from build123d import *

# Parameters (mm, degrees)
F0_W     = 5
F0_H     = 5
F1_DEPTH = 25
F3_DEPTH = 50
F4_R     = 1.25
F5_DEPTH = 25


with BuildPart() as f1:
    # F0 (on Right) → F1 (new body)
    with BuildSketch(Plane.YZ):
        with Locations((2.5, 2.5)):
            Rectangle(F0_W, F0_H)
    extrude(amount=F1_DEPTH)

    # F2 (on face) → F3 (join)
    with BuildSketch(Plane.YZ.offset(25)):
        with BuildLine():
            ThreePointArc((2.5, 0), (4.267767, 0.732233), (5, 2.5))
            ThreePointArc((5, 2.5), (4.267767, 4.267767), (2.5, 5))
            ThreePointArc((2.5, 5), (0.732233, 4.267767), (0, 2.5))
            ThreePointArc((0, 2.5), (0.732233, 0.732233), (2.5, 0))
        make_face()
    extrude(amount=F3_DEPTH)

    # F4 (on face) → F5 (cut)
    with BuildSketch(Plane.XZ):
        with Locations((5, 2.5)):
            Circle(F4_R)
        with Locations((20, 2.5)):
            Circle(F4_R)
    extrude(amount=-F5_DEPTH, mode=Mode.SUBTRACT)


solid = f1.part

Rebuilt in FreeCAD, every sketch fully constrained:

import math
import FreeCAD as App
import Part
import Sketcher
Q = App.Units.Quantity


def add_polygon(sketch, points):
    """Adds a closed chain of lines whose ends are joined by coincident constraints."""
    first, n = sketch.GeometryCount, len(points)
    for a, b in zip(points, points[1:] + points[:1]):
        sketch.addGeometry(Part.LineSegment(App.Vector(*a, 0), App.Vector(*b, 0)), False)
    for i in range(n):
        sketch.addConstraint(Sketcher.Constraint("Coincident", first + i, 2, first + (i + 1) % n, 1))

doc = App.newDocument("Part")
params = doc.addObject("Spreadsheet::Sheet", "Params")
for row, (alias, value) in enumerate([
    ("sketch1_width", "5 mm"),
    ("pad1_length", "25 mm"),
    ("sketch2_radius", "2.5 mm"),
    ("pad2_length", "50 mm"),
    ("sketch3_diameter", "2.5 mm"),
    ("pocket1_length", "25 mm"),
], start=1):
    params.set(f"A{row}", alias)
    params.set(f"B{row}", "=" + value)
    params.setAlias(f"B{row}", alias)

body = doc.addObject("PartDesign::Body", "Body")

sketch1 = body.newObject("Sketcher::SketchObject", "Sketch")
sketch1.AttachmentSupport = (doc.getObject("YZ_Plane"), [""])
sketch1.MapMode = "FlatFace"
add_polygon(sketch1, [(0, 5), (0, 0), (5, 0), (5, 5)])
sketch1.addConstraint(Sketcher.Constraint("Vertical", 0))
sketch1.addConstraint(Sketcher.Constraint("Horizontal", 1))
sketch1.addConstraint(Sketcher.Constraint("Vertical", 2))
sketch1.addConstraint(Sketcher.Constraint("Horizontal", 3))
sketch1.addConstraint(Sketcher.Constraint("Coincident", 0, 2, -1, 1))
sketch1.addConstraint(Sketcher.Constraint("Equal", 3, 0))
sketch1.addConstraint(Sketcher.Constraint("DistanceX", 1, 1, 1, 2, Q("5 mm")))
sketch1.setExpression("Constraints[10]", "Params.sketch1_width")
pad1 = body.newObject("PartDesign::Pad", "Pad")
pad1.Profile = sketch1
pad1.setExpression("Length", "Params.pad1_length")

sketch2 = body.newObject("Sketcher::SketchObject", "Sketch001")
sketch2.AttachmentSupport = (doc.getObject("YZ_Plane"), [""])
sketch2.MapMode = "FlatFace"
sketch2.AttachmentOffset = App.Placement(App.Vector(0, 0, 25), App.Rotation())
sketch2.addGeometry(Part.ArcOfCircle(Part.Circle(App.Vector(2.5, 2.5, 0), App.Vector(0, 0, 1), 2.5), math.radians(-90), math.radians(0)), False)
sketch2.addGeometry(Part.ArcOfCircle(Part.Circle(App.Vector(2.5, 2.5, 0), App.Vector(0, 0, 1), 2.5), math.radians(0), math.radians(90)), False)
sketch2.addGeometry(Part.ArcOfCircle(Part.Circle(App.Vector(2.5, 2.5, 0), App.Vector(0, 0, 1), 2.5), math.radians(90), math.radians(180)), False)
sketch2.addGeometry(Part.ArcOfCircle(Part.Circle(App.Vector(2.5, 2.5, 0), App.Vector(0, 0, 1), 2.5), math.radians(180), math.radians(270)), False)
sketch2.addConstraint(Sketcher.Constraint("Tangent", 0, 2, 1, 1))
sketch2.addConstraint(Sketcher.Constraint("Tangent", 1, 2, 2, 1))
sketch2.addConstraint(Sketcher.Constraint("Tangent", 2, 2, 3, 1))
sketch2.addConstraint(Sketcher.Constraint("Tangent", 3, 2, 0, 1))
sketch2.addConstraint(Sketcher.Constraint("Equal", 0, 1))
sketch2.addConstraint(Sketcher.Constraint("PointOnObject", 2, 2, -2))
sketch2.addConstraint(Sketcher.Constraint("PointOnObject", 3, 2, -1))
sketch2.addConstraint(Sketcher.Constraint("Horizontal", 3, 3, 0, 2))
sketch2.addConstraint(Sketcher.Constraint("Horizontal", 0, 2, 2, 2))
sketch2.addConstraint(Sketcher.Constraint("Vertical", 3, 3, 1, 2))
sketch2.addConstraint(Sketcher.Constraint("Vertical", 1, 2, 3, 2))
sketch2.addConstraint(Sketcher.Constraint("Radius", 0, Q("2.5 mm")))
sketch2.setExpression("Constraints[11]", "Params.sketch2_radius")
pad2 = body.newObject("PartDesign::Pad", "Pad001")
pad2.Profile = sketch2
pad2.setExpression("Length", "Params.pad2_length")

sketch3 = body.newObject("Sketcher::SketchObject", "Sketch002")
sketch3.AttachmentSupport = (doc.getObject("XZ_Plane"), [""])
sketch3.MapMode = "FlatFace"
sketch3.addGeometry(Part.Circle(App.Vector(5, 2.5, 0), App.Vector(0, 0, 1), 1.2), False)
sketch3.addGeometry(Part.Circle(App.Vector(20, 2.5, 0), App.Vector(0, 0, 1), 1.2), False)
sketch3.addConstraint(Sketcher.Constraint("Equal", 0, 1))
sketch3.addConstraint(Sketcher.Constraint("Horizontal", 0, 3, 1, 3))
sketch3.addConstraint(Sketcher.Constraint("Diameter", 0, Q("2.5 mm")))
sketch3.addConstraint(Sketcher.Constraint("DistanceX", -1, 1, 0, 3, Q("5 mm")))
sketch3.addConstraint(Sketcher.Constraint("DistanceX", -1, 1, 1, 3, Q("20 mm")))
sketch3.addConstraint(Sketcher.Constraint("DistanceY", -1, 1, 0, 3, Q("2.5 mm")))
sketch3.setExpression("Constraints[2]", "Params.sketch3_diameter")
pocket1 = body.newObject("PartDesign::Pocket", "Pocket")
pocket1.Profile = sketch3
pocket1.setExpression("Length", "Params.pocket1_length")

doc.recompute()
